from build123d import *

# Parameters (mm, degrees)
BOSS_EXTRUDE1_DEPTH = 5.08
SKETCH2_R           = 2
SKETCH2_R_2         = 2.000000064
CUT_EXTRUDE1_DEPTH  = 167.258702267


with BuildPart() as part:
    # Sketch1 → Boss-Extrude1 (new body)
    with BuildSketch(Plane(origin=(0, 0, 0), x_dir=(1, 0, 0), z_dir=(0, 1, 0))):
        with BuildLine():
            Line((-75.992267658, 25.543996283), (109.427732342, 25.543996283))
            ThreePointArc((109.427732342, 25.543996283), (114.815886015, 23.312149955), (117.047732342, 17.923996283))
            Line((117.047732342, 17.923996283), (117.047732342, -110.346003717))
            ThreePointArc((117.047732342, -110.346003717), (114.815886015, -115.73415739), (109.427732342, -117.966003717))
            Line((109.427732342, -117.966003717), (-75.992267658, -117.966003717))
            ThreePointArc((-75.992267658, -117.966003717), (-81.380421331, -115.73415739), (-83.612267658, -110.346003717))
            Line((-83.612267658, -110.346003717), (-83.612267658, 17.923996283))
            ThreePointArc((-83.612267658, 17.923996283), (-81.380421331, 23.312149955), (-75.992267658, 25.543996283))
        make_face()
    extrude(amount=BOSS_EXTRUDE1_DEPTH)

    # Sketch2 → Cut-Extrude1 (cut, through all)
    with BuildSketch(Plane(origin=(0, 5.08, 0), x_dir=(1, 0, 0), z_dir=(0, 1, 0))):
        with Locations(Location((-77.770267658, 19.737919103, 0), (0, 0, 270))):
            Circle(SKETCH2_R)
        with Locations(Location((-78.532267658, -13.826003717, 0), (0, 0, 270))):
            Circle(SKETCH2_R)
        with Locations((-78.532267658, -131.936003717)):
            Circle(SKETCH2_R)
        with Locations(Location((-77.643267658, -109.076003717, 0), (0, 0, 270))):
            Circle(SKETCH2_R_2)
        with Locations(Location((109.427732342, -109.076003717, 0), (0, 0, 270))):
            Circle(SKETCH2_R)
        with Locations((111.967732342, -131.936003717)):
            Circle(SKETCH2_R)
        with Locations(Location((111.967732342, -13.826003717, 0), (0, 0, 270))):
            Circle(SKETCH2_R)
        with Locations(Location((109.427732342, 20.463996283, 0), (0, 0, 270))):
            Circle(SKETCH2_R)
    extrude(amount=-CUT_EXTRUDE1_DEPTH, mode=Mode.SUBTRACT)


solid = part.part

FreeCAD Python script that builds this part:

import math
import FreeCAD as App
import Part
import Sketcher

V = App.Vector
Q = App.Units.Quantity

doc = App.newDocument("Part")
body = doc.addObject("PartDesign::Body", "Body")

sketch1 = doc.addObject("Sketcher::SketchObject", "Sketch")
body.addObject(sketch1)
sketch1.AttachmentSupport = (doc.XZ_Plane, [""])
sketch1.MapMode = "FlatFace"
sketch1.addGeometry([
    Part.LineSegment(V(109.427732, -25.543996, 0), V(-75.992268, -25.543996, 0)),
    Part.ArcOfCircle(Part.Circle(V(-75.992268, -17.923996, 0), V(0, 0, 1), 7.62), math.radians(180), math.radians(270)),
    Part.LineSegment(V(-83.612268, -17.923996, 0), V(-83.612268, 110.346004, 0)),
    Part.ArcOfCircle(Part.Circle(V(-75.992268, 110.346004, 0), V(0, 0, 1), 7.62), math.radians(90), math.radians(180)),
    Part.LineSegment(V(-75.992268, 117.966004, 0), V(109.427732, 117.966004, 0)),
    Part.ArcOfCircle(Part.Circle(V(109.427732, 110.346004, 0), V(0, 0, 1), 7.62), math.radians(0), math.radians(90)),
    Part.LineSegment(V(117.047732, 110.346004, 0), V(117.047732, -17.923996, 0)),
    Part.ArcOfCircle(Part.Circle(V(109.427732, -17.923996, 0), V(0, 0, 1), 7.62), math.radians(-90), math.radians(0)),
], False)
sketch1.addConstraint([
    Sketcher.Constraint("Tangent", 0, 2, 1, 2),
    Sketcher.Constraint("Tangent", 1, 1, 2, 1),
    Sketcher.Constraint("Tangent", 2, 2, 3, 2),
    Sketcher.Constraint("Tangent", 3, 1, 4, 1),
    Sketcher.Constraint("Tangent", 4, 2, 5, 2),
    Sketcher.Constraint("Tangent", 5, 1, 6, 1),
    Sketcher.Constraint("Tangent", 6, 2, 7, 2),
    Sketcher.Constraint("Tangent", 7, 1, 0, 1),
    Sketcher.Constraint("Horizontal", 0),
    Sketcher.Constraint("Vertical", 2),
    Sketcher.Constraint("Horizontal", 4),
    Sketcher.Constraint("Vertical", 6),
    Sketcher.Constraint("Equal", 1, 3),
    Sketcher.Constraint("Equal", 3, 5),
    Sketcher.Constraint("Equal", 5, 7),
    Sketcher.Constraint("Radius", 1, Q("0.3 in")),
    Sketcher.Constraint("DistanceX", 0, 2, 0, 1, Q("7.3 in")),
    Sketcher.Constraint("DistanceY", 2, 1, 2, 2, Q("5.05 in")),
    Sketcher.Constraint("DistanceX", 1, 3, -1, 1, Q("75.992268 mm")),
    Sketcher.Constraint("DistanceY", 1, 3, -1, 1, Q("17.923996 mm")),
])
pad1 = doc.addObject("PartDesign::Pad", "Pad")
body.addObject(pad1)
pad1.Profile = sketch1
pad1.Length = Q("0.2 in")
pad1.Reversed = True

sketch2 = doc.addObject("Sketcher::SketchObject", "Sketch001")
body.addObject(sketch2)
sketch2.AttachmentSupport = (doc.XZ_Plane, [""])
sketch2.MapMode = "FlatFace"
sketch2.AttachmentOffset = App.Placement(V(0, 0, -0.2 * 25.4), App.Rotation())
sketch2.addGeometry([
    Part.Circle(V(-77.770268, -19.737919, 0), V(0, 0, 1), 2),
    Part.Circle(V(-78.532268, 13.826004, 0), V(0, 0, 1), 2),
    Part.Circle(V(-78.532268, 131.936004, 0), V(0, 0, 1), 2),
    Part.Circle(V(-77.643268, 109.076004, 0), V(0, 0, 1), 2),
    Part.Circle(V(109.427732, 109.076004, 0), V(0, 0, 1), 2),
    Part.Circle(V(111.967732, 131.936004, 0), V(0, 0, 1), 2),
    Part.Circle(V(111.967732, 13.826004, 0), V(0, 0, 1), 2),
    Part.Circle(V(109.427732, -20.463996, 0), V(0, 0, 1), 2),
], False)
sketch2.addConstraint([
    Sketcher.Constraint("Equal", 0, 1),
    Sketcher.Constraint("Equal", 1, 2),
    Sketcher.Constraint("Equal", 2, 3),
    Sketcher.Constraint("Equal", 3, 4),
    Sketcher.Constraint("Equal", 4, 5),
    Sketcher.Constraint("Equal", 5, 6),
    Sketcher.Constraint("Equal", 6, 7),
    Sketcher.Constraint("Horizontal", 3, 3, 4, 3),
    Sketcher.Constraint("Horizontal", 2, 3, 5, 3),
    Sketcher.Constraint("Horizontal", 1, 3, 6, 3),
    Sketcher.Constraint("Vertical", 1, 3, 2, 3),
    Sketcher.Constraint("Vertical", 5, 3, 6, 3),
    Sketcher.Constraint("Vertical", 4, 3, 7, 3),
    Sketcher.Constraint("DistanceY", 7, 3, 5, 3, Q("6 in")),
    Sketcher.Constraint("DistanceY", 3, 3, 2, 3, Q("0.9 in")),
    Sketcher.Constraint("DistanceX", 2, 3, 4, 3, Q("7.4 in")),
    Sketcher.Constraint("DistanceX", 4, 3, 5, 3, Q("0.1 in")),
    Sketcher.Constraint("Diameter", 0, Q("4 mm")),
    Sketcher.Constraint("DistanceX", 1, 3, 0, 3, Q("0.03 in")),
    Sketcher.Constraint("DistanceY", 1, 3, 2, 3, Q("4.65 in")),
    Sketcher.Constraint("DistanceX", 2, 3, 3, 3, Q("0.035 in")),
    Sketcher.Constraint("DistanceY", 0, 3, -1, 1, Q("19.737919 mm")),
    Sketcher.Constraint("DistanceX", 0, 3, -1, 1, Q("77.770268 mm")),
    Sketcher.Constraint("DistanceY", -1, 1, 1, 3, Q("13.826004 mm")),
])
pocket1 = doc.addObject("PartDesign::Pocket", "Pocket")
body.addObject(pocket1)
pocket1.Profile = sketch2
pocket1.Type = "ThroughAll"
pocket1.Reversed = True

doc.recompute()
